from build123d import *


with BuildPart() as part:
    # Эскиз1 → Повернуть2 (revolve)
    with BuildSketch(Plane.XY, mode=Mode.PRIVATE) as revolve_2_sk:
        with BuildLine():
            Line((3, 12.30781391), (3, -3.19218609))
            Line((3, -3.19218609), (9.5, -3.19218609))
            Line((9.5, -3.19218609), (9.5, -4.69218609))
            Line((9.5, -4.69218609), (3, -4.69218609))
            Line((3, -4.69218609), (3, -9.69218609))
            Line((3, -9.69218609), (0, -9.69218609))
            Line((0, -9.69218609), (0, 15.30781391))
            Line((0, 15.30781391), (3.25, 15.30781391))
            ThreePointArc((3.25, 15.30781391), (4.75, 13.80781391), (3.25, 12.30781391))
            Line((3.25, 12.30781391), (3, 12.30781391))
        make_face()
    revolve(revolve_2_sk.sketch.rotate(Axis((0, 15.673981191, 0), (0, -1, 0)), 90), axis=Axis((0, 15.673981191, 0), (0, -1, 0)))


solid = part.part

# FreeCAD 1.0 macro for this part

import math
import FreeCAD as App
import Part
import Sketcher
from FreeCAD import Vector
Q = App.Units.Quantity

doc = App.newDocument("Part")
body = doc.addObject("PartDesign::Body", "Body")

# Sketch on XY plane
sketch1 = doc.addObject("Sketcher::SketchObject", "Sketch")
body.addObject(sketch1)
sketch1.AttachmentSupport = (doc.XY_Plane, [""])
sketch1.MapMode = "FlatFace"
sketch1.addGeometry([
    Part.LineSegment(Vector(3, -3.19, 0), Vector(3, 12.31, 0)),  # 0
    Part.LineSegment(Vector(3, 12.31, 0), Vector(3.25, 12.31, 0)),  # 1
    Part.ArcOfCircle(Part.Circle(Vector(3.25, 13.81, 0), Vector(0, 0, 1), 1.5), math.radians(-90), math.radians(90)),  # 2
    Part.LineSegment(Vector(3.25, 15.31, 0), Vector(0, 15.31, 0)),  # 3
    Part.LineSegment(Vector(0, 15.31, 0), Vector(0, -9.69, 0)),  # 4
    Part.LineSegment(Vector(0, -9.69, 0), Vector(3, -9.69, 0)),  # 5
    Part.LineSegment(Vector(3, -9.69, 0), Vector(3, -4.69, 0)),  # 6
    Part.LineSegment(Vector(3, -4.69, 0), Vector(9.5, -4.69, 0)),  # 7
    Part.LineSegment(Vector(9.5, -4.69, 0), Vector(9.5, -3.19, 0)),  # 8
    Part.LineSegment(Vector(9.5, -3.19, 0), Vector(3, -3.19, 0)),  # 9
], False)
sketch1.addConstraint([
    Sketcher.Constraint("Coincident", 0, 2, 1, 1),
    Sketcher.Constraint("Tangent", 1, 2, 2, 1),
    Sketcher.Constraint("Tangent", 2, 2, 3, 1),
    Sketcher.Constraint("Coincident", 3, 2, 4, 1),
    Sketcher.Constraint("Coincident", 4, 2, 5, 1),
    Sketcher.Constraint("Coincident", 5, 2, 6, 1),
    Sketcher.Constraint("Coincident", 6, 2, 7, 1),
    Sketcher.Constraint("Coincident", 7, 2, 8, 1),
    Sketcher.Constraint("Coincident", 8, 2, 9, 1),
    Sketcher.Constraint("Coincident", 9, 2, 0, 1),
    Sketcher.Constraint("Vertical", 0),
    Sketcher.Constraint("Horizontal", 1),
    Sketcher.Constraint("Horizontal", 3),
    Sketcher.Constraint("Vertical", 4),
    Sketcher.Constraint("Horizontal", 5),
    Sketcher.Constraint("Vertical", 6),
    Sketcher.Constraint("Horizontal", 7),
    Sketcher.Constraint("Vertical", 8),
    Sketcher.Constraint("Horizontal", 9),
    Sketcher.Constraint("PointOnObject", 3, 2, -2),
    Sketcher.Constraint("Vertical", 0, 2, 5, 2),
    Sketcher.Constraint("Radius", 2, Q("1.5 mm")),
    Sketcher.Constraint("DistanceX", 5, 1, 5, 2, Q("3 mm")),
    Sketcher.Constraint("DistanceY", 4, 2, 4, 1, Q("25 mm")),
    Sketcher.Constraint("DistanceY", 6, 1, 6, 2, Q("5 mm")),
    Sketcher.Constraint("DistanceX", 7, 1, 7, 2, Q("6.5 mm")),
    Sketcher.Constraint("DistanceY", 0, 1, 0, 2, Q("15.5 mm")),
    Sketcher.Constraint("DistanceX", 1, 1, 1, 2, Q("0.25 mm")),
    Sketcher.Constraint("DistanceY", -1, 1, 2, 3, Q("13.807814 mm")),
])
revolution = doc.addObject("PartDesign::Revolution", "Revolution")
body.addObject(revolution)
revolution.Profile = sketch1
revolution.ReferenceAxis = (sketch1, ["V_Axis"])
revolution.Angle = 360

doc.recompute()
